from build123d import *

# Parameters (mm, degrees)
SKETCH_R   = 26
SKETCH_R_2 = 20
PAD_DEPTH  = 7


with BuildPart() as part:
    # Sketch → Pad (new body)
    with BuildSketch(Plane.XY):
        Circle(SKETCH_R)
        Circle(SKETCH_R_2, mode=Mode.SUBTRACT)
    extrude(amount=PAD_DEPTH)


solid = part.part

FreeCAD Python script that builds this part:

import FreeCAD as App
import Part
import Sketcher

doc = App.newDocument("Part")
body = doc.addObject("PartDesign::Body", "Body")

# Sketch on XY plane
sketch1 = doc.addObject("Sketcher::SketchObject", "Sketch")
body.addObject(sketch1)
sketch1.AttachmentSupport = (doc.XY_Plane, [""])
sketch1.MapMode = "FlatFace"
sketch1.addGeometry([
    Part.Circle(App.Vector(0, 0, 0), App.Vector(0, 0, 1), 26),
    Part.Circle(App.Vector(0, 0, 0), App.Vector(0, 0, 1), 20),
], False)
sketch1.addConstraint([
    Sketcher.Constraint("Coincident", 0, 3, -1, 1),
    Sketcher.Constraint("Coincident", 1, 3, -1, 1),
    Sketcher.Constraint("Diameter", 0, 52.0),
    Sketcher.Constraint("Diameter", 1, 40.0),
])
pad1 = doc.addObject("PartDesign::Pad", "Pad")
body.addObject(pad1)
pad1.Profile = sketch1
pad1.Length = 7

doc.recompute()
